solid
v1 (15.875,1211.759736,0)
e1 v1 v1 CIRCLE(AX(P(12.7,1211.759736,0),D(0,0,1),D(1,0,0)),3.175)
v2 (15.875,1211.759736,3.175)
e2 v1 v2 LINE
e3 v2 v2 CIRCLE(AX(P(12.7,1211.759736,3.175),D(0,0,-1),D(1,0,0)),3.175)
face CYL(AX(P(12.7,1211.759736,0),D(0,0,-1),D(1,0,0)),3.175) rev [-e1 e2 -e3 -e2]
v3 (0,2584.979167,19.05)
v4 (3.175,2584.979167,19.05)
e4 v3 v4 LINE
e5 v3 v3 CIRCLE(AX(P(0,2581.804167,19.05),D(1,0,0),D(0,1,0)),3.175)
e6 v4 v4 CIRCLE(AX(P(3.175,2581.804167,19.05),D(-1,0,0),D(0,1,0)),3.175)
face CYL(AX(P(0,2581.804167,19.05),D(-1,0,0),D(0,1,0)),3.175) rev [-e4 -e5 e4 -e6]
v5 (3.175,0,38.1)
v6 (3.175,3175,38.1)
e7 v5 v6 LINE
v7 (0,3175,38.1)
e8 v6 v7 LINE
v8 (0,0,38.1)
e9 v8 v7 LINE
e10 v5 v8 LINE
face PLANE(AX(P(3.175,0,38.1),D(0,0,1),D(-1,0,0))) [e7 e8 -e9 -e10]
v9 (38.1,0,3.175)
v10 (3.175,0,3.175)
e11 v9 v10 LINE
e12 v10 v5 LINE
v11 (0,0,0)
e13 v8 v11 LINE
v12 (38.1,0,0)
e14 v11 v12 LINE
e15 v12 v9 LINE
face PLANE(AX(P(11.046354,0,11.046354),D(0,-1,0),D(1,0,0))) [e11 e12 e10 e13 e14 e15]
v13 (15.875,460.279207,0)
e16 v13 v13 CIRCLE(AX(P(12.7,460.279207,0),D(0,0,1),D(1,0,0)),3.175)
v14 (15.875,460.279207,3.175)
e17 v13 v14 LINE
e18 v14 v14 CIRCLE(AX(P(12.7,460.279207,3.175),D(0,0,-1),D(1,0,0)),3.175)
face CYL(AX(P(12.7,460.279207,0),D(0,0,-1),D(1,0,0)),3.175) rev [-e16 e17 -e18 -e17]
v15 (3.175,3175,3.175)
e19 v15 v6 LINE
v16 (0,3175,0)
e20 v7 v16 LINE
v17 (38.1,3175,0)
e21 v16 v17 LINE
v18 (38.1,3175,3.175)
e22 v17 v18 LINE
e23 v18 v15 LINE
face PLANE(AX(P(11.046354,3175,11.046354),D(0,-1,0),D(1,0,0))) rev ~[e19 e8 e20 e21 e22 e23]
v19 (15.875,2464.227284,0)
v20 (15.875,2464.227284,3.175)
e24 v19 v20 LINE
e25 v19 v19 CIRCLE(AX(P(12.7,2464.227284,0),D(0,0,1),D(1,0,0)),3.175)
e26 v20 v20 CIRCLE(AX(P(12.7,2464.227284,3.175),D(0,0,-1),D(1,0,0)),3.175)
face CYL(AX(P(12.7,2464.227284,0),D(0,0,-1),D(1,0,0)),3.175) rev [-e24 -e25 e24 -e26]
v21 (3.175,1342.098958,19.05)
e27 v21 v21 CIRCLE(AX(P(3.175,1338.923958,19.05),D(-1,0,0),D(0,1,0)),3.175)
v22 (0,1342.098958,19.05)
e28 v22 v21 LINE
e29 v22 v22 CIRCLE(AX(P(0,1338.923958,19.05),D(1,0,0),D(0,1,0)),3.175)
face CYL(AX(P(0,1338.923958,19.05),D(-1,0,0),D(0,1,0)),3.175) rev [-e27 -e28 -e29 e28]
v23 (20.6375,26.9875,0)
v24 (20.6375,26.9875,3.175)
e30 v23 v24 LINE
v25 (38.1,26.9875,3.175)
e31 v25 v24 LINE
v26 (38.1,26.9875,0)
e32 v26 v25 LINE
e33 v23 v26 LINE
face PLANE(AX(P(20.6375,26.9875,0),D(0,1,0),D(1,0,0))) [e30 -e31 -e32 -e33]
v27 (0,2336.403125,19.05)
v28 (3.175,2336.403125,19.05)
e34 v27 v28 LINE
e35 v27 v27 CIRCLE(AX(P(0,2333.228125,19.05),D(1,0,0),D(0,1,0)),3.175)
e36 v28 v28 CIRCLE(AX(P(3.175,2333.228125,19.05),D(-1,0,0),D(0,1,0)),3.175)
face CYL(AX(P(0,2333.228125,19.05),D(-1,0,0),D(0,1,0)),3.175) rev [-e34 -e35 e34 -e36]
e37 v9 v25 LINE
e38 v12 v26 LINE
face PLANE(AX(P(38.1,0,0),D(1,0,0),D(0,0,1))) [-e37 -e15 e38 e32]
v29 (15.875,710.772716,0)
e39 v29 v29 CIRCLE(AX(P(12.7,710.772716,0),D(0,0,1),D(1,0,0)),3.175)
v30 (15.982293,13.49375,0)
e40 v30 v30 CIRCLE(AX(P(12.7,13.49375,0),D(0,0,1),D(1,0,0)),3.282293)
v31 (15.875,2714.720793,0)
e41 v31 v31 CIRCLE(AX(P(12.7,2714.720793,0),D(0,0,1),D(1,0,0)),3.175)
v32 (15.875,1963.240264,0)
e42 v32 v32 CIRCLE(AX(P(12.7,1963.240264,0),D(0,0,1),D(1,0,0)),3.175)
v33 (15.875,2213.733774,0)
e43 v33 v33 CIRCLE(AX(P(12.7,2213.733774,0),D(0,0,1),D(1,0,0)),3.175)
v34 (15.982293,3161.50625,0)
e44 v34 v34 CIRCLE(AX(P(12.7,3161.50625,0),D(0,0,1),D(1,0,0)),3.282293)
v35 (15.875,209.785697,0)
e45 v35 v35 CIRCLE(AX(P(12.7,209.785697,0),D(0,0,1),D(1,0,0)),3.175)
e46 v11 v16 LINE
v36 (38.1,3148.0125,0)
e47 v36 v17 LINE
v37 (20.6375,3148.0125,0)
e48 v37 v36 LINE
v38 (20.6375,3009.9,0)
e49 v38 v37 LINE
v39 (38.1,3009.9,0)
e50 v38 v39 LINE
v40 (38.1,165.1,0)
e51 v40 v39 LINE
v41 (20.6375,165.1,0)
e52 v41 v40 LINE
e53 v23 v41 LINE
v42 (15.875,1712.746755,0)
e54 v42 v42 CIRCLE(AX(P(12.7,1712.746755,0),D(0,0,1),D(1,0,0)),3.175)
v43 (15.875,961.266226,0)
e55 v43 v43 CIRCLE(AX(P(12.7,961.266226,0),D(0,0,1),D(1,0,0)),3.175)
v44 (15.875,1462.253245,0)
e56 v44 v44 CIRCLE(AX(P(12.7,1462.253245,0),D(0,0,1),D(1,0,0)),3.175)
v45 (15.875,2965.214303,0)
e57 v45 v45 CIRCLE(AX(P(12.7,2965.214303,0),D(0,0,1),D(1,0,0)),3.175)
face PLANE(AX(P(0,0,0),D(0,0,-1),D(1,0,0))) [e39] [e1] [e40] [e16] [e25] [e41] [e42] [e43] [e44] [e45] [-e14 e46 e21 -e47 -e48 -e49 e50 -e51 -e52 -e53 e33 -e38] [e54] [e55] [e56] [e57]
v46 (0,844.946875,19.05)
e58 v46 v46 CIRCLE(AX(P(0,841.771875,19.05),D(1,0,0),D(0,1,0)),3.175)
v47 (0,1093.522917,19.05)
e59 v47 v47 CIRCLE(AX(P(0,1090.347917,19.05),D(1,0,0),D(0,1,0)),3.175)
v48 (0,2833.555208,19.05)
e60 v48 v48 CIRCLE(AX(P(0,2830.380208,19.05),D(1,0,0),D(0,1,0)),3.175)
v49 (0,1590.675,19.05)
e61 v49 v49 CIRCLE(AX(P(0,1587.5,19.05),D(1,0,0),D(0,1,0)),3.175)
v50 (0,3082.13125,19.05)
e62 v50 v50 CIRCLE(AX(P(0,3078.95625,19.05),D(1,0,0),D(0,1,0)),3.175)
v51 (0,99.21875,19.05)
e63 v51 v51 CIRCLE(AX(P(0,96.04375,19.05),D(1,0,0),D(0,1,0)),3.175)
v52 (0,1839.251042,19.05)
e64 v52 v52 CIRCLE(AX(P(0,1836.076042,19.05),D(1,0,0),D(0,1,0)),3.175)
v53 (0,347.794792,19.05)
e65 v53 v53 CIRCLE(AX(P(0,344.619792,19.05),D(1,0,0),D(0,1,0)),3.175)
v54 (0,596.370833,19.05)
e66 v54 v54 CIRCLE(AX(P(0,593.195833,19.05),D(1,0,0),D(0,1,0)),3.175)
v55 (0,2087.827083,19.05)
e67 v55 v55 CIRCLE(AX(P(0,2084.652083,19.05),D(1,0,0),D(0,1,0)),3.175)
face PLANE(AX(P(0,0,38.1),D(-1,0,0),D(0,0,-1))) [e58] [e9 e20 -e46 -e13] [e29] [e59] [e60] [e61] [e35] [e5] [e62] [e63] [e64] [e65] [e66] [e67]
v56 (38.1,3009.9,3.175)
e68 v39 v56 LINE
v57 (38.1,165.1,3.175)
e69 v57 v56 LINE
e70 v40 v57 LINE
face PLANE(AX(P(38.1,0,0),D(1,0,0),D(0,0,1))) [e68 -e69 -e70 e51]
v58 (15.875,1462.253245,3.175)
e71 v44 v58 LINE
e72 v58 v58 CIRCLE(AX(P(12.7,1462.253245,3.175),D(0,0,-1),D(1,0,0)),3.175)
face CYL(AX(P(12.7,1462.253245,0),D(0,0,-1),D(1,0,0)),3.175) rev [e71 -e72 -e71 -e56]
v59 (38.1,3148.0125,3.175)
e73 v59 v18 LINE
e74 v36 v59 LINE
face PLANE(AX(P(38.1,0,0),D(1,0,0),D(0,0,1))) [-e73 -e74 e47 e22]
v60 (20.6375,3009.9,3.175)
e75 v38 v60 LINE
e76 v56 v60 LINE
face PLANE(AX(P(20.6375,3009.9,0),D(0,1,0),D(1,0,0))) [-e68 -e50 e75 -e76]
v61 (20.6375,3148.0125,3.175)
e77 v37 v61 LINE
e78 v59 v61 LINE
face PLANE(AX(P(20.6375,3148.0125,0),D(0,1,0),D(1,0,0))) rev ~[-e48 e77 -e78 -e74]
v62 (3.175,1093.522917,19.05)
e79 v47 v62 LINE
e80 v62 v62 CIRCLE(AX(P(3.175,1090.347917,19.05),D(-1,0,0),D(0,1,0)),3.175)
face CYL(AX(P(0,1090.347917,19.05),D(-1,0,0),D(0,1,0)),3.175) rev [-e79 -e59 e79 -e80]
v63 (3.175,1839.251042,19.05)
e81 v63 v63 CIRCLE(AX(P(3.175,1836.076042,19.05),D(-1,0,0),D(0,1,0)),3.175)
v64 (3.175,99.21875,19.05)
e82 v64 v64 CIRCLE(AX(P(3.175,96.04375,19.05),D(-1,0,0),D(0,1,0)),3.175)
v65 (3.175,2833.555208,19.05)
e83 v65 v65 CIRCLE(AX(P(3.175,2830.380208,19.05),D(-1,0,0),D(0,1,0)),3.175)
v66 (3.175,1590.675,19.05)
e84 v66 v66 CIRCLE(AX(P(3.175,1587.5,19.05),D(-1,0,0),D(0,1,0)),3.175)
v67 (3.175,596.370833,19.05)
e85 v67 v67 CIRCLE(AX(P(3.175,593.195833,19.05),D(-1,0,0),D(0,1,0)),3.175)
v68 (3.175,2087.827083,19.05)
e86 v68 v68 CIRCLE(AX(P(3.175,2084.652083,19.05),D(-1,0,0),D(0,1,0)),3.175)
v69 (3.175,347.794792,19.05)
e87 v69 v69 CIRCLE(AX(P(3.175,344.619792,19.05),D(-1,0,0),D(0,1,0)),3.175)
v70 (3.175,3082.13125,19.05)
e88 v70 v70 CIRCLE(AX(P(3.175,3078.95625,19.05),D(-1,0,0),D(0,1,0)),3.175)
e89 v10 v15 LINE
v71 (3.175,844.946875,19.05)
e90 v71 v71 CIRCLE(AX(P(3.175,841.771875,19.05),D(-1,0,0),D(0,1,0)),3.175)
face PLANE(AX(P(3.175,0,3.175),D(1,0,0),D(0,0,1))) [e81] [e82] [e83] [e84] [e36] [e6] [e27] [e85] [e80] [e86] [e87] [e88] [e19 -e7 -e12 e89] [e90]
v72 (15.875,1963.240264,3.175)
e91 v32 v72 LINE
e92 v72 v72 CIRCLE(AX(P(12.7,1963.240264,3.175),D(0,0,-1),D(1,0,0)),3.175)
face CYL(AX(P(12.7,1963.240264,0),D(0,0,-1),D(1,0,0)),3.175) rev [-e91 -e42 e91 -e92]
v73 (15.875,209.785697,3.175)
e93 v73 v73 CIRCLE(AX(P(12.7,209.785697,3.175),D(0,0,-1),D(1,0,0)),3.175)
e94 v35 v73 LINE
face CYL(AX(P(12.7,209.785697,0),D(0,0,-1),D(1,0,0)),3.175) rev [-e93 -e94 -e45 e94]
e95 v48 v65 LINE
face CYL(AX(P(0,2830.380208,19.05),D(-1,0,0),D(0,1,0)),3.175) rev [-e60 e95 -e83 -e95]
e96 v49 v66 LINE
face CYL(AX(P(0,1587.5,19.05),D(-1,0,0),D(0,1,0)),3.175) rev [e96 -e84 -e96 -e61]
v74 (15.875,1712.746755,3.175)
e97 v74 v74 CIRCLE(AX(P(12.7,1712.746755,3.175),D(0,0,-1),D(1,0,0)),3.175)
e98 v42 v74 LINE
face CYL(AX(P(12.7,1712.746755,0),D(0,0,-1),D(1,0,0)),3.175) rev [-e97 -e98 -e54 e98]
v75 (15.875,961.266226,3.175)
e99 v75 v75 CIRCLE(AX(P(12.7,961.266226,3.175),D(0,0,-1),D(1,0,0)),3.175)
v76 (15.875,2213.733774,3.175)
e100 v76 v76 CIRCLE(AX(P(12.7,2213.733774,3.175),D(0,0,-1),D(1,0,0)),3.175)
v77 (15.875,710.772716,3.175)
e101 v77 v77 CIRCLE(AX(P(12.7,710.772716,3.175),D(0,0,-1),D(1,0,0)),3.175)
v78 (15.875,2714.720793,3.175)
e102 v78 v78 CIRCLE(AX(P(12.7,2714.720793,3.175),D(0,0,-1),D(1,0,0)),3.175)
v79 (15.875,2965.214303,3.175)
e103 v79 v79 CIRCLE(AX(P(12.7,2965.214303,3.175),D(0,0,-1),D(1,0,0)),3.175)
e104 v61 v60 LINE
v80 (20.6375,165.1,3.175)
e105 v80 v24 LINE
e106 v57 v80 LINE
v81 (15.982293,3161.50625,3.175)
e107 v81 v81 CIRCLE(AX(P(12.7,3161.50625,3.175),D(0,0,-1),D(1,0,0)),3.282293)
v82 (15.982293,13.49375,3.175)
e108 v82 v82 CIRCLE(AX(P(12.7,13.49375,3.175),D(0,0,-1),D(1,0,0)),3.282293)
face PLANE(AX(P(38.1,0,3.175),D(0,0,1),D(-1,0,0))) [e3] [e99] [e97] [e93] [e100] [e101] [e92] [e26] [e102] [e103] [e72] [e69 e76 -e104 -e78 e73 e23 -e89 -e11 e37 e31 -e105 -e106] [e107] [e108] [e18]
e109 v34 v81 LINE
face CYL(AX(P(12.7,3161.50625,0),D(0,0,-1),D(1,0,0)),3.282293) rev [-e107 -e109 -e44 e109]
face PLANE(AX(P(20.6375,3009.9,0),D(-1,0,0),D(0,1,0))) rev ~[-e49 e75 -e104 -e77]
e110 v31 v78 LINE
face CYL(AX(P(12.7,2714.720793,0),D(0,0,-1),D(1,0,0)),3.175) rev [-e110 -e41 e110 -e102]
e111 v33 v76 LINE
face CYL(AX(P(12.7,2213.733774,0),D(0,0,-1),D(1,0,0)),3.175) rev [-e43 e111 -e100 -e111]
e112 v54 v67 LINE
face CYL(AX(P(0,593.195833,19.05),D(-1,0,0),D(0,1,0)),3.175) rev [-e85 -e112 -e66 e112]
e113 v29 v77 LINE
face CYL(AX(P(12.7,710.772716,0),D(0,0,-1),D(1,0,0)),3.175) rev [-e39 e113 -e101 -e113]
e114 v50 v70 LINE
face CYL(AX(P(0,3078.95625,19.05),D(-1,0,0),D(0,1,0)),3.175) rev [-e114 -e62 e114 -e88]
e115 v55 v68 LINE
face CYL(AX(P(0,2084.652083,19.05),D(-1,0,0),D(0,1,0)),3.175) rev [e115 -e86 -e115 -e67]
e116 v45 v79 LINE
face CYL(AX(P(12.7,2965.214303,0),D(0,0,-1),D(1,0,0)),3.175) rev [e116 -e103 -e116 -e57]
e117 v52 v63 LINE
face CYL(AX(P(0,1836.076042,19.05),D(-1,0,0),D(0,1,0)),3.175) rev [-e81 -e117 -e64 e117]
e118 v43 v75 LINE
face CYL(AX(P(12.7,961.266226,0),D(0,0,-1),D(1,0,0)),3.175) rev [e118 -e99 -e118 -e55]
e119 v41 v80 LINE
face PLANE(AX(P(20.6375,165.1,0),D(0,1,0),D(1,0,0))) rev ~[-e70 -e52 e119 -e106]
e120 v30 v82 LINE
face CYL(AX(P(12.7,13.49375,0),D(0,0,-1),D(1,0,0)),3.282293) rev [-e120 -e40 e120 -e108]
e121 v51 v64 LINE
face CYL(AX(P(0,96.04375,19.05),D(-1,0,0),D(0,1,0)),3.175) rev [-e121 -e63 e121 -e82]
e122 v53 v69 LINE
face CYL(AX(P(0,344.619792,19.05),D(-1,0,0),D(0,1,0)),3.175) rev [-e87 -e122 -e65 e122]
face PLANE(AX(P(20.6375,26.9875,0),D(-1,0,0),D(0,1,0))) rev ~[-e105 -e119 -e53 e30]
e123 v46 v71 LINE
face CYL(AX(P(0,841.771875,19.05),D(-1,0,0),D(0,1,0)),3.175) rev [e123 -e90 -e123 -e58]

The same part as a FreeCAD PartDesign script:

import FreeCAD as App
import Part
import Sketcher

V = App.Vector
Q = App.Units.Quantity

doc = App.newDocument("Part")
body = doc.addObject("PartDesign::Body", "Body")

# Sketch on XZ plane
sketch1 = body.newObject("Sketcher::SketchObject", "Sketch")
sketch1.AttachmentSupport = (doc.getObject("XZ_Plane"), [""])
sketch1.MapMode = "FlatFace"
sketch1.addGeometry([
    Part.LineSegment(V(0, 38.1, 0), V(0, 0, 0)),  # 0
    Part.LineSegment(V(0, 0, 0), V(38.1, 0, 0)),  # 1
    Part.LineSegment(V(38.1, 0, 0), V(38.1, 3.2, 0)),  # 2
    Part.LineSegment(V(38.1, 3.2, 0), V(3.2, 3.2, 0)),  # 3
    Part.LineSegment(V(3.2, 3.2, 0), V(3.2, 38.1, 0)),  # 4
    Part.LineSegment(V(3.2, 38.1, 0), V(0, 38.1, 0)),  # 5
], False)
sketch1.addConstraint([
    Sketcher.Constraint("Coincident", 0, 2, 1, 1),
    Sketcher.Constraint("Coincident", 1, 2, 2, 1),
    Sketcher.Constraint("Coincident", 2, 2, 3, 1),
    Sketcher.Constraint("Coincident", 3, 2, 4, 1),
    Sketcher.Constraint("Coincident", 4, 2, 5, 1),
    Sketcher.Constraint("Coincident", 5, 2, 0, 1),
    Sketcher.Constraint("Vertical", 0),
    Sketcher.Constraint("Horizontal", 1),
    Sketcher.Constraint("Vertical", 2),
    Sketcher.Constraint("Horizontal", 3),
    Sketcher.Constraint("Vertical", 4),
    Sketcher.Constraint("Horizontal", 5),
    Sketcher.Constraint("Coincident", 0, 2, -1, 1),
    Sketcher.Constraint("Equal", 1, 0),
    Sketcher.Constraint("Equal", 5, 2),
    Sketcher.Constraint("DistanceX", 1, 1, 1, 2, Q("1.5 in")),
    Sketcher.Constraint("DistanceX", 3, 2, 3, 1, Q("1.375 in")),
])
pad1 = body.newObject("PartDesign::Pad", "Pad")
pad1.Profile = sketch1
pad1.Length = Q("125 in")
pad1.Reversed = True

# Sketch on XY plane
sketch2 = body.newObject("Sketcher::SketchObject", "Sketch001")
sketch2.AttachmentSupport = (doc.getObject("XY_Plane"), [""])
sketch2.MapMode = "FlatFace"
sketch2.addGeometry([
    Part.Circle(V(12.7, 209.8, 0), V(0, 0, 1), 3.2),  # 0
    Part.Circle(V(12.7, 460.3, 0), V(0, 0, 1), 3.2),  # 1
    Part.Circle(V(12.7, 710.8, 0), V(0, 0, 1), 3.2),  # 2
    Part.Circle(V(12.7, 961.3, 0), V(0, 0, 1), 3.2),  # 3
    Part.Circle(V(12.7, 1211.8, 0), V(0, 0, 1), 3.2),  # 4
    Part.Circle(V(12.7, 1462.3, 0), V(0, 0, 1), 3.2),  # 5
    Part.Circle(V(12.7, 1712.7, 0), V(0, 0, 1), 3.2),  # 6
    Part.Circle(V(12.7, 1963.2, 0), V(0, 0, 1), 3.2),  # 7
    Part.Circle(V(12.7, 2213.7, 0), V(0, 0, 1), 3.2),  # 8
    Part.Circle(V(12.7, 2464.2, 0), V(0, 0, 1), 3.2),  # 9
    Part.Circle(V(12.7, 2714.7, 0), V(0, 0, 1), 3.2),  # 10
    Part.Circle(V(12.7, 2965.2, 0), V(0, 0, 1), 3.2),  # 11
    Part.LineSegment(V(20.6, 165.1, 0), V(20.6, 27, 0)),  # 12
    Part.LineSegment(V(20.6, 27, 0), V(38.1, 27, 0)),  # 13
    Part.LineSegment(V(38.1, 27, 0), V(38.1, 165.1, 0)),  # 14
    Part.LineSegment(V(38.1, 165.1, 0), V(20.6, 165.1, 0)),  # 15
    Part.Circle(V(12.7, 13.5, 0), V(0, 0, 1), 3.3),  # 16
    Part.LineSegment(V(20.6, 3148, 0), V(20.6, 3009.9, 0)),  # 17
    Part.LineSegment(V(20.6, 3009.9, 0), V(38.1, 3009.9, 0)),  # 18
    Part.LineSegment(V(38.1, 3009.9, 0), V(38.1, 3148, 0)),  # 19
    Part.LineSegment(V(38.1, 3148, 0), V(20.6, 3148, 0)),  # 20
    Part.Circle(V(12.7, 3161.5, 0), V(0, 0, 1), 3.3),  # 21
], False)
sketch2.addConstraint([
    Sketcher.Constraint("Coincident", 12, 2, 13, 1),
    Sketcher.Constraint("Coincident", 13, 2, 14, 1),
    Sketcher.Constraint("Coincident", 14, 2, 15, 1),
    Sketcher.Constraint("Coincident", 15, 2, 12, 1),
    Sketcher.Constraint("Coincident", 17, 2, 18, 1),
    Sketcher.Constraint("Coincident", 18, 2, 19, 1),
    Sketcher.Constraint("Coincident", 19, 2, 20, 1),
    Sketcher.Constraint("Coincident", 20, 2, 17, 1),
    Sketcher.Constraint("Vertical", 12),
    Sketcher.Constraint("Horizontal", 13),
    Sketcher.Constraint("Vertical", 14),
    Sketcher.Constraint("Horizontal", 15),
    Sketcher.Constraint("Vertical", 17),
    Sketcher.Constraint("Horizontal", 18),
    Sketcher.Constraint("Vertical", 19),
    Sketcher.Constraint("Horizontal", 20),
    Sketcher.Constraint("Equal", 0, 1),
    Sketcher.Constraint("Equal", 1, 2),
    Sketcher.Constraint("Equal", 2, 3),
    Sketcher.Constraint("Equal", 3, 4),
    Sketcher.Constraint("Equal", 4, 5),
    Sketcher.Constraint("Equal", 5, 6),
    Sketcher.Constraint("Equal", 6, 7),
    Sketcher.Constraint("Equal", 7, 8),
    Sketcher.Constraint("Equal", 8, 9),
    Sketcher.Constraint("Equal", 9, 10),
    Sketcher.Constraint("Equal", 10, 11),
    Sketcher.Constraint("Equal", 16, 21),
    Sketcher.Constraint("Vertical", 0, 3, 1, 3),
    Sketcher.Constraint("Vertical", 1, 3, 2, 3),
    Sketcher.Constraint("Vertical", 2, 3, 3, 3),
    Sketcher.Constraint("Vertical", 3, 3, 4, 3),
    Sketcher.Constraint("Vertical", 4, 3, 5, 3),
    Sketcher.Constraint("Vertical", 5, 3, 6, 3),
    Sketcher.Constraint("Vertical", 6, 3, 7, 3),
    Sketcher.Constraint("Vertical", 7, 3, 8, 3),
    Sketcher.Constraint("Vertical", 8, 3, 9, 3),
    Sketcher.Constraint("Vertical", 9, 3, 10, 3),
    Sketcher.Constraint("Vertical", 10, 3, 11, 3),
    Sketcher.Constraint("Vertical", 11, 3, 16, 3),
    Sketcher.Constraint("Vertical", 16, 3, 21, 3),
    Sketcher.Constraint("Vertical", 15, 2, 17, 2),
    Sketcher.Constraint("Vertical", 14, 2, 18, 2),
    Sketcher.Constraint("Equal", 14, 17),
    Sketcher.Constraint("Diameter", 0, Q("0.25 in")),
    Sketcher.Constraint("DistanceX", 16, 3, 13, 2, Q("1 in")),
    Sketcher.Constraint("DistanceX", -1, 1, 0, 3, Q("0.5 in")),
    Sketcher.Constraint("DistanceY", -1, 1, 14, 2, Q("6.5 in")),
    Sketcher.Constraint("DistanceY", -1, 1, 17, 2, Q("118.5 in")),
    Sketcher.Constraint("DistanceX", 13, 1, 13, 2, Q("0.6875 in")),
    Sketcher.Constraint("DistanceY", 12, 2, 12, 1, Q("5.4375 in")),
    Sketcher.Constraint("DistanceY", -1, 1, 16, 3, Q("0.53125 in")),
    Sketcher.Constraint("DistanceY", -1, 1, 21, 3, Q("124.46875 in")),
    Sketcher.Constraint("Diameter", 16, 6.564586),
    Sketcher.Constraint("DistanceY", 0, 3, 1, 3, 250.49351),
    Sketcher.Constraint("DistanceY", 1, 3, 2, 3, 250.493509),
    Sketcher.Constraint("DistanceY", 2, 3, 3, 3, 250.49351),
    Sketcher.Constraint("DistanceY", 3, 3, 4, 3, 250.49351),
    Sketcher.Constraint("DistanceY", 4, 3, 5, 3, 250.493509),
    Sketcher.Constraint("DistanceY", 5, 3, 6, 3, 250.49351),
    Sketcher.Constraint("DistanceY", 6, 3, 7, 3, 250.493509),
    Sketcher.Constraint("DistanceY", 7, 3, 8, 3, 250.49351),
    Sketcher.Constraint("DistanceY", 8, 3, 9, 3, 250.49351),
    Sketcher.Constraint("DistanceY", 9, 3, 10, 3, 250.493509),
    Sketcher.Constraint("DistanceY", 10, 3, 11, 3, 250.49351),
    Sketcher.Constraint("DistanceY", -1, 1, 0, 3, 209.785697),
])
pocket1 = body.newObject("PartDesign::Pocket", "Pocket")
pocket1.Profile = sketch2
pocket1.Length = Q("1 in")
pocket1.Reversed = True

# Sketch on YZ plane
sketch3 = body.newObject("Sketcher::SketchObject", "Sketch002")
sketch3.AttachmentSupport = (doc.getObject("YZ_Plane"), [""])
sketch3.MapMode = "FlatFace"
sketch3.addGeometry([
    Part.Circle(V(96, 19.1, 0), V(0, 0, 1), 3.2),  # 0
    Part.Circle(V(344.6, 19.1, 0), V(0, 0, 1), 3.2),  # 1
    Part.Circle(V(593.2, 19.1, 0), V(0, 0, 1), 3.2),  # 2
    Part.Circle(V(841.8, 19.1, 0), V(0, 0, 1), 3.2),  # 3
    Part.Circle(V(1090.3, 19.1, 0), V(0, 0, 1), 3.2),  # 4
    Part.Circle(V(1338.9, 19.1, 0), V(0, 0, 1), 3.2),  # 5
    Part.Circle(V(1587.5, 19.1, 0), V(0, 0, 1), 3.2),  # 6
    Part.Circle(V(1836.1, 19.1, 0), V(0, 0, 1), 3.2),  # 7
    Part.Circle(V(2084.7, 19.1, 0), V(0, 0, 1), 3.2),  # 8
    Part.Circle(V(2333.2, 19.1, 0), V(0, 0, 1), 3.2),  # 9
    Part.Circle(V(2581.8, 19.1, 0), V(0, 0, 1), 3.2),  # 10
    Part.Circle(V(2830.4, 19.1, 0), V(0, 0, 1), 3.2),  # 11
    Part.Circle(V(3079, 19.1, 0), V(0, 0, 1), 3.2),  # 12
], False)
sketch3.addConstraint([
    Sketcher.Constraint("Equal", 0, 1),
    Sketcher.Constraint("Equal", 1, 2),
    Sketcher.Constraint("Equal", 2, 3),
    Sketcher.Constraint("Equal", 3, 4),
    Sketcher.Constraint("Equal", 4, 5),
    Sketcher.Constraint("Equal", 5, 6),
    Sketcher.Constraint("Equal", 6, 7),
    Sketcher.Constraint("Equal", 7, 8),
    Sketcher.Constraint("Equal", 8, 9),
    Sketcher.Constraint("Equal", 9, 10),
    Sketcher.Constraint("Equal", 10, 11),
    Sketcher.Constraint("Equal", 11, 12),
    Sketcher.Constraint("Horizontal", 0, 3, 1, 3),
    Sketcher.Constraint("Horizontal", 1, 3, 2, 3),
    Sketcher.Constraint("Horizontal", 2, 3, 3, 3),
    Sketcher.Constraint("Horizontal", 3, 3, 4, 3),
    Sketcher.Constraint("Horizontal", 4, 3, 5, 3),
    Sketcher.Constraint("Horizontal", 5, 3, 6, 3),
    Sketcher.Constraint("Horizontal", 6, 3, 7, 3),
    Sketcher.Constraint("Horizontal", 7, 3, 8, 3),
    Sketcher.Constraint("Horizontal", 8, 3, 9, 3),
    Sketcher.Constraint("Horizontal", 9, 3, 10, 3),
    Sketcher.Constraint("Horizontal", 10, 3, 11, 3),
    Sketcher.Constraint("Horizontal", 11, 3, 12, 3),
    Sketcher.Constraint("Diameter", 0, Q("0.25 in")),
    Sketcher.Constraint("DistanceX", -1, 1, 6, 3, Q("62.5 in")),
    Sketcher.Constraint("DistanceY", -1, 1, 0, 3, Q("0.75 in")),
    Sketcher.Constraint("DistanceX", -1, 1, 0, 3, Q("3.78125 in")),
    Sketcher.Constraint("DistanceX", -1, 1, 3, 3, Q("33.140625 in")),
    Sketcher.Constraint("DistanceX", -1, 1, 9, 3, Q("91.859375 in")),
    Sketcher.Constraint("DistanceX", -1, 1, 12, 3, Q("121.21875 in")),
    Sketcher.Constraint("DistanceX", 1, 3, 4, 3, Q("29.359375 in")),
    Sketcher.Constraint("DistanceX", 2, 3, 5, 3, Q("29.359375 in")),
    Sketcher.Constraint("DistanceX", 4, 3, 7, 3, Q("29.359375 in")),
    Sketcher.Constraint("DistanceX", 5, 3, 8, 3, Q("29.359375 in")),
    Sketcher.Constraint("DistanceX", 7, 3, 10, 3, Q("29.359375 in")),
    Sketcher.Constraint("DistanceX", 8, 3, 11, 3, Q("29.359375 in")),
    Sketcher.Constraint("DistanceX", -1, 1, 1, 3, 344.619792),
    Sketcher.Constraint("DistanceX", -1, 1, 5, 3, 1338.923958),
])
pocket2 = body.newObject("PartDesign::Pocket", "Pocket001")
pocket2.Profile = sketch3
pocket2.Length = Q("1 in")
pocket2.Reversed = True

doc.recompute()
